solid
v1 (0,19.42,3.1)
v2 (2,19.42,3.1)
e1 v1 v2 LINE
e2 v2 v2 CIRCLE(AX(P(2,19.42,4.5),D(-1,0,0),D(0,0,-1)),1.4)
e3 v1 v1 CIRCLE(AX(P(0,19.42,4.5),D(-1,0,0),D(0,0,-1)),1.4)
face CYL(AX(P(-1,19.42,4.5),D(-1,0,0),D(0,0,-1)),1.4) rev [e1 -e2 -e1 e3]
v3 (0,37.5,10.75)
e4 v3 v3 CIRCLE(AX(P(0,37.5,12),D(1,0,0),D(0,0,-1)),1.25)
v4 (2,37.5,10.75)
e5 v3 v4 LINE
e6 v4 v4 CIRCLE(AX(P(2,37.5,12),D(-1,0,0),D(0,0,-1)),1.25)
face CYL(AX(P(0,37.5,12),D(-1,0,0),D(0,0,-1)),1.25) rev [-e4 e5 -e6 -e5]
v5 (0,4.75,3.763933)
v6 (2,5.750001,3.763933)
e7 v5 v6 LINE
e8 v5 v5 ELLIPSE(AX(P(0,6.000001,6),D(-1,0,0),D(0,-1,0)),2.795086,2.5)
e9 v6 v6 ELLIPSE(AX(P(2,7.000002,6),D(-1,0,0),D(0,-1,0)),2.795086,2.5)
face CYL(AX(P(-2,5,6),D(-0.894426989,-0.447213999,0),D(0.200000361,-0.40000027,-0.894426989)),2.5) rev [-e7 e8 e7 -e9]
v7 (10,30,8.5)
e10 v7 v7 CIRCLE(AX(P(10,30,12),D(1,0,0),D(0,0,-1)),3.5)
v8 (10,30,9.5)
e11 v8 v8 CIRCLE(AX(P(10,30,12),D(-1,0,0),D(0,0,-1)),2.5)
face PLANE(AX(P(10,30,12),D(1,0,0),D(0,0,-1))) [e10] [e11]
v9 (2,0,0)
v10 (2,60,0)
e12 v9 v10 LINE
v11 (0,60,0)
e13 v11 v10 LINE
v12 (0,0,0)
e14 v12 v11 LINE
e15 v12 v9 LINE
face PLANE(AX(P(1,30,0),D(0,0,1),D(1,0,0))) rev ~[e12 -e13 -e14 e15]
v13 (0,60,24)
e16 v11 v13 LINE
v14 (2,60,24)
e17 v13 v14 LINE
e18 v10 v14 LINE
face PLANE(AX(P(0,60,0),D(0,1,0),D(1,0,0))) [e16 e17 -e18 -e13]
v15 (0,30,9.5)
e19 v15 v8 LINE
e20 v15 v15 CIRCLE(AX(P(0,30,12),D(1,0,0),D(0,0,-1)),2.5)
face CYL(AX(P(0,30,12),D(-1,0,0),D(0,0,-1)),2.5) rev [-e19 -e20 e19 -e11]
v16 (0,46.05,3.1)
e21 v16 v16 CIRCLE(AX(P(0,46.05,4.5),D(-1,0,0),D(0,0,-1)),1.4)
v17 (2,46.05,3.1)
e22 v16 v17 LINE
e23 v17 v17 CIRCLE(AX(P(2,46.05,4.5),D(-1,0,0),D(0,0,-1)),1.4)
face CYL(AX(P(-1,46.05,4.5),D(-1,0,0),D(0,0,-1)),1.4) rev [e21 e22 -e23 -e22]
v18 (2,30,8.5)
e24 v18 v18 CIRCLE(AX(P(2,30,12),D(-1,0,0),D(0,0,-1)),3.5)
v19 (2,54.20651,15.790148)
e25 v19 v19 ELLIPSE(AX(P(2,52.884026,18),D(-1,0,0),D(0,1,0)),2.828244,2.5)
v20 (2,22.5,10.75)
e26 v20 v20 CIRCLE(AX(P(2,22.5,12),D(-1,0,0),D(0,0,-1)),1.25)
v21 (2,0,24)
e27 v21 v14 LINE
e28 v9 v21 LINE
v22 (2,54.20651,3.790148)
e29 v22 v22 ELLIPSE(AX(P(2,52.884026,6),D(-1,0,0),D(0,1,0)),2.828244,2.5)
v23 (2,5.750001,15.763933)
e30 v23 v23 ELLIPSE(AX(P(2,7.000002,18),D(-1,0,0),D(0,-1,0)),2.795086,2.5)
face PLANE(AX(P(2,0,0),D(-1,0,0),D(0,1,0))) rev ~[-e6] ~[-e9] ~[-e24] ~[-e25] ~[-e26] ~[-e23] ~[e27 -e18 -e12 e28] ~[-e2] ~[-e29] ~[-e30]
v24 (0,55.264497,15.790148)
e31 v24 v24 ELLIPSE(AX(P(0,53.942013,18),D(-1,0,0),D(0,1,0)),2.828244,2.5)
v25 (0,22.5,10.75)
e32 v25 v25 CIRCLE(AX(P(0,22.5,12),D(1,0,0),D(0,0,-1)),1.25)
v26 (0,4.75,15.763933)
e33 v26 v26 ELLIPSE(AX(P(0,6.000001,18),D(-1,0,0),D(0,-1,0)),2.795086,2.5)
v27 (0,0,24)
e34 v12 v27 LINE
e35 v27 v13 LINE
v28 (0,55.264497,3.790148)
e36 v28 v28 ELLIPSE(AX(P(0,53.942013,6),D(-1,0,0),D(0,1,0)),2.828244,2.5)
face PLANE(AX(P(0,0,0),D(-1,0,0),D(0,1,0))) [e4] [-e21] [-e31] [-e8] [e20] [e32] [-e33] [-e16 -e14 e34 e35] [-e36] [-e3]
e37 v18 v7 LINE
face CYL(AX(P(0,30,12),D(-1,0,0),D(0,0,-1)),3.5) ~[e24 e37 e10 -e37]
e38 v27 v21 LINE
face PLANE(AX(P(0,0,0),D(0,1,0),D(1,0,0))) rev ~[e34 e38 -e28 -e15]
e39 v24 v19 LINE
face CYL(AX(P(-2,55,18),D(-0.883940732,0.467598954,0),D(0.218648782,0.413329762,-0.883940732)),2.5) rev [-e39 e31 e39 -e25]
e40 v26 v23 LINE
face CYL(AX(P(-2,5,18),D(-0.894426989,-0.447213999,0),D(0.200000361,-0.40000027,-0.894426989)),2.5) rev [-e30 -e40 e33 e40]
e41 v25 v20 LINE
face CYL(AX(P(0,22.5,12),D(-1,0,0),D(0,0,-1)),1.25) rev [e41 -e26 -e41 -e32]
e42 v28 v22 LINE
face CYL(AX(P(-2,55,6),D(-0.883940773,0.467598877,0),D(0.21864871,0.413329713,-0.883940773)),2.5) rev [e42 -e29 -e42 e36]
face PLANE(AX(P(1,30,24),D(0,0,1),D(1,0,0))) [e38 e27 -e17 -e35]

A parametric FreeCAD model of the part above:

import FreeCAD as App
import Part
import Sketcher

doc = App.newDocument("Part")
body = doc.addObject("PartDesign::Body", "Body")

# Sketch on XY plane
sketch1 = doc.addObject("Sketcher::SketchObject", "Sketch")
body.addObject(sketch1)
sketch1.AttachmentSupport = (doc.XY_Plane, [""])
sketch1.MapMode = "FlatFace"
sketch1.addGeometry(Part.Circle(App.Vector(0, 0, 0), App.Vector(0, 0, 1), 2.5), False)
sketch1.addConstraint([
    Sketcher.Constraint("Coincident", 0, 3, -1, 1),
    Sketcher.Constraint("Diameter", 0, 5.0),
])
pad1 = doc.addObject("PartDesign::Pad", "Pad")
body.addObject(pad1)
pad1.Profile = sketch1
pad1.Length = 12
body2 = doc.addObject("PartDesign::Body", "Body001")
doc.recompute()

body.Placement = App.Placement(App.Vector(0, 0, 0), App.Rotation(App.Vector(0, 1, 0), 90))
boolean = doc.addObject("PartDesign::Boolean", "Boolean")
body2.addObject(boolean)
boolean.Type = "Fuse"
boolean.addObjects([body])
body3 = doc.addObject("PartDesign::Body", "Body002")
doc.recompute()

body2.Placement = App.Placement(App.Vector(0, 30, 12), App.Rotation(App.Vector(0, 0, 1), 0))
boolean2 = doc.addObject("PartDesign::Boolean", "Boolean001")
body3.addObject(boolean2)
boolean2.Type = "Fuse"
boolean2.addObjects([body2])
body4 = doc.addObject("PartDesign::Body", "Body003")

# Sketch on XY plane
sketch2 = doc.addObject("Sketcher::SketchObject", "Sketch001")
body4.addObject(sketch2)
sketch2.AttachmentSupport = (doc.getObject("XY_Plane003"), [""])
sketch2.MapMode = "FlatFace"
sketch2.addGeometry(Part.Circle(App.Vector(0, 0, 0), App.Vector(0, 0, 1), 3.5), False)
sketch2.addConstraint([
    Sketcher.Constraint("Coincident", 0, 3, -1, 1),
    Sketcher.Constraint("Diameter", 0, 7.0),
])
pad2 = doc.addObject("PartDesign::Pad", "Pad001")
body4.addObject(pad2)
pad2.Profile = sketch2
pad2.Length = 10
body5 = doc.addObject("PartDesign::Body", "Body004")
doc.recompute()

body4.Placement = App.Placement(App.Vector(0, 0, 0), App.Rotation(App.Vector(0, 1, 0), 90))
boolean3 = doc.addObject("PartDesign::Boolean", "Boolean002")
body5.addObject(boolean3)
boolean3.Type = "Fuse"
boolean3.addObjects([body4])
body6 = doc.addObject("PartDesign::Body", "Body005")
doc.recompute()

body5.Placement = App.Placement(App.Vector(0, 30, 12), App.Rotation(App.Vector(0, 0, 1), 0))
boolean4 = doc.addObject("PartDesign::Boolean", "Boolean003")
body6.addObject(boolean4)
boolean4.Type = "Fuse"
boolean4.addObjects([body5])
doc.recompute()

body7 = doc.addObject("PartDesign::Body", "Body006")
body7.BaseFeature = body3
boolean5 = doc.addObject("PartDesign::Boolean", "Boolean004")
body6.addObject(boolean5)
boolean5.Type = "Cut"
boolean5.addObjects([body7])
doc.recompute()
body8 = doc.addObject("PartDesign::Body", "Body007")

# Sketch on XY plane
sketch3 = doc.addObject("Sketcher::SketchObject", "Sketch002")
body8.addObject(sketch3)
sketch3.AttachmentSupport = (doc.getObject("XY_Plane007"), [""])
sketch3.MapMode = "FlatFace"
sketch3.addGeometry(Part.Circle(App.Vector(0, 0, 0), App.Vector(0, 0, 1), 1.4), False)
sketch3.addConstraint([
    Sketcher.Constraint("Coincident", 0, 3, -1, 1),
    Sketcher.Constraint("Diameter", 0, 2.8),
])
pad3 = doc.addObject("PartDesign::Pad", "Pad002")
body8.addObject(pad3)
pad3.Profile = sketch3
pad3.Length = 10
body9 = doc.addObject("PartDesign::Body", "Body008")
doc.recompute()

body8.Placement = App.Placement(App.Vector(0, 0, 0), App.Rotation(App.Vector(0, 1, 0), 90))
boolean6 = doc.addObject("PartDesign::Boolean", "Boolean005")
body9.addObject(boolean6)
boolean6.Type = "Fuse"
boolean6.addObjects([body8])
body10 = doc.addObject("PartDesign::Body", "Body009")
doc.recompute()

body9.Placement = App.Placement(App.Vector(-1, 46.05, 4.5), App.Rotation(App.Vector(0, 0, 1), 0))
boolean7 = doc.addObject("PartDesign::Boolean", "Boolean006")
body10.addObject(boolean7)
boolean7.Type = "Fuse"
boolean7.addObjects([body9])
body11 = doc.addObject("PartDesign::Body", "Body010")

# Sketch on XY plane
sketch4 = doc.addObject("Sketcher::SketchObject", "Sketch003")
body11.addObject(sketch4)
sketch4.AttachmentSupport = (doc.getObject("XY_Plane010"), [""])
sketch4.MapMode = "FlatFace"
sketch4.addGeometry(Part.Circle(App.Vector(0, 0, 0), App.Vector(0, 0, 1), 1.4), False)
sketch4.addConstraint([
    Sketcher.Constraint("Coincident", 0, 3, -1, 1),
    Sketcher.Constraint("Diameter", 0, 2.8),
])
pad4 = doc.addObject("PartDesign::Pad", "Pad003")
body11.addObject(pad4)
pad4.Profile = sketch4
pad4.Length = 10
body12 = doc.addObject("PartDesign::Body", "Body011")
doc.recompute()

body11.Placement = App.Placement(App.Vector(0, 0, 0), App.Rotation(App.Vector(0, 1, 0), 90))
boolean8 = doc.addObject("PartDesign::Boolean", "Boolean007")
body12.addObject(boolean8)
boolean8.Type = "Fuse"
boolean8.addObjects([body11])
body13 = doc.addObject("PartDesign::Body", "Body012")
doc.recompute()

body12.Placement = App.Placement(App.Vector(-1, 19.42, 4.5), App.Rotation(App.Vector(0, 0, 1), 0))
boolean9 = doc.addObject("PartDesign::Boolean", "Boolean008")
body13.addObject(boolean9)
boolean9.Type = "Fuse"
boolean9.addObjects([body12])
body14 = doc.addObject("PartDesign::Body", "Body013")

# Sketch on XY plane
sketch5 = doc.addObject("Sketcher::SketchObject", "Sketch004")
body14.addObject(sketch5)
sketch5.AttachmentSupport = (doc.getObject("XY_Plane013"), [""])
sketch5.MapMode = "FlatFace"
sketch5.addGeometry(Part.Circle(App.Vector(0, 0, 0), App.Vector(0, 0, 1), 1.2), False)
sketch5.addConstraint([
    Sketcher.Constraint("Coincident", 0, 3, -1, 1),
    Sketcher.Constraint("Diameter", 0, 2.5),
])
pad5 = doc.addObject("PartDesign::Pad", "Pad004")
body14.addObject(pad5)
pad5.Profile = sketch5
pad5.Length = 10
body15 = doc.addObject("PartDesign::Body", "Body014")
doc.recompute()

body14.Placement = App.Placement(App.Vector(0, 0, 0), App.Rotation(App.Vector(0, 1, 0), 90))
boolean10 = doc.addObject("PartDesign::Boolean", "Boolean009")
body15.addObject(boolean10)
boolean10.Type = "Fuse"
boolean10.addObjects([body14])
body16 = doc.addObject("PartDesign::Body", "Body015")
doc.recompute()

body15.Placement = App.Placement(App.Vector(0, 22.5, 12), App.Rotation(App.Vector(0, 0, 1), 0))
boolean11 = doc.addObject("PartDesign::Boolean", "Boolean010")
body16.addObject(boolean11)
boolean11.Type = "Fuse"
boolean11.addObjects([body15])
body17 = doc.addObject("PartDesign::Body", "Body016")

# Sketch on XY plane
sketch6 = doc.addObject("Sketcher::SketchObject", "Sketch005")
body17.addObject(sketch6)
sketch6.AttachmentSupport = (doc.getObject("XY_Plane016"), [""])
sketch6.MapMode = "FlatFace"
sketch6.addGeometry(Part.Circle(App.Vector(0, 0, 0), App.Vector(0, 0, 1), 1.2), False)
sketch6.addConstraint([
    Sketcher.Constraint("Coincident", 0, 3, -1, 1),
    Sketcher.Constraint("Diameter", 0, 2.5),
])
pad6 = doc.addObject("PartDesign::Pad", "Pad005")
body17.addObject(pad6)
pad6.Profile = sketch6
pad6.Length = 10
body18 = doc.addObject("PartDesign::Body", "Body017")
doc.recompute()

body17.Placement = App.Placement(App.Vector(0, 0, 0), App.Rotation(App.Vector(0, 1, 0), 90))
boolean12 = doc.addObject("PartDesign::Boolean", "Boolean011")
body18.addObject(boolean12)
boolean12.Type = "Fuse"
boolean12.addObjects([body17])
body19 = doc.addObject("PartDesign::Body", "Body018")
doc.recompute()

body18.Placement = App.Placement(App.Vector(0, 37.5, 12), App.Rotation(App.Vector(0, 0, 1), 0))
boolean13 = doc.addObject("PartDesign::Boolean", "Boolean012")
body19.addObject(boolean13)
boolean13.Type = "Fuse"
boolean13.addObjects([body18])
body20 = doc.addObject("PartDesign::Body", "Body019")

# Sketch on XY plane
sketch7 = doc.addObject("Sketcher::SketchObject", "Sketch006")
body20.addObject(sketch7)
sketch7.AttachmentSupport = (doc.getObject("XY_Plane019"), [""])
sketch7.MapMode = "FlatFace"
sketch7.addGeometry(Part.Circle(App.Vector(0, 0, 0), App.Vector(0, 0, 1), 2.5), False)
sketch7.addConstraint([
    Sketcher.Constraint("Coincident", 0, 3, -1, 1),
    Sketcher.Constraint("Diameter", 0, 5.0),
])
pad7 = doc.addObject("PartDesign::Pad", "Pad006")
body20.addObject(pad7)
pad7.Profile = sketch7
pad7.Length = 10
body21 = doc.addObject("PartDesign::Body", "Body020")
doc.recompute()

body20.Placement = App.Placement(App.Vector(0, 0, 0), App.Rotation(App.Vector(1, 0, 0), 90))
boolean14 = doc.addObject("PartDesign::Boolean", "Boolean013")
body21.addObject(boolean14)
boolean14.Type = "Fuse"
boolean14.addObjects([body20])
body22 = doc.addObject("PartDesign::Body", "Body021")
doc.recompute()

body21.Placement = App.Placement(App.Vector(0, 0, 0), App.Rotation(App.Vector(0, 1, 0), 62.121453))
boolean15 = doc.addObject("PartDesign::Boolean", "Boolean014")
body22.addObject(boolean15)
boolean15.Type = "Fuse"
boolean15.addObjects([body21])
body23 = doc.addObject("PartDesign::Body", "Body022")
doc.recompute()

body22.Placement = App.Placement(App.Vector(-2, 55, 6), App.Rotation(App.Vector(0, 0, 1), 62.121453))
boolean16 = doc.addObject("PartDesign::Boolean", "Boolean015")
body23.addObject(boolean16)
boolean16.Type = "Fuse"
boolean16.addObjects([body22])
body24 = doc.addObject("PartDesign::Body", "Body023")

# Sketch on XY plane
sketch8 = doc.addObject("Sketcher::SketchObject", "Sketch007")
body24.addObject(sketch8)
sketch8.AttachmentSupport = (doc.getObject("XY_Plane023"), [""])
sketch8.MapMode = "FlatFace"
sketch8.addGeometry(Part.Circle(App.Vector(0, 0, 0), App.Vector(0, 0, 1), 2.5), False)
sketch8.addConstraint([
    Sketcher.Constraint("Coincident", 0, 3, -1, 1),
    Sketcher.Constraint("Diameter", 0, 5.0),
])
pad8 = doc.addObject("PartDesign::Pad", "Pad007")
body24.addObject(pad8)
pad8.Profile = sketch8
pad8.Length = 10
body25 = doc.addObject("PartDesign::Body", "Body024")
doc.recompute()

body24.Placement = App.Placement(App.Vector(0, 0, 0), App.Rotation(App.Vector(1, 0, 0), 90))
boolean17 = doc.addObject("PartDesign::Boolean", "Boolean016")
body25.addObject(boolean17)
boolean17.Type = "Fuse"
boolean17.addObjects([body24])
body26 = doc.addObject("PartDesign::Body", "Body025")
doc.recompute()

body25.Placement = App.Placement(App.Vector(0, 0, 0), App.Rotation(App.Vector(0, 1, 0), 62.121448))
boolean18 = doc.addObject("PartDesign::Boolean", "Boolean017")
body26.addObject(boolean18)
boolean18.Type = "Fuse"
boolean18.addObjects([body25])
body27 = doc.addObject("PartDesign::Body", "Body026")
doc.recompute()

body26.Placement = App.Placement(App.Vector(-2, 55, 18), App.Rotation(App.Vector(0, 0, 1), 62.121448))
boolean19 = doc.addObject("PartDesign::Boolean", "Boolean018")
body27.addObject(boolean19)
boolean19.Type = "Fuse"
boolean19.addObjects([body26])
body28 = doc.addObject("PartDesign::Body", "Body027")

# Sketch on XY plane
sketch9 = doc.addObject("Sketcher::SketchObject", "Sketch008")
body28.addObject(sketch9)
sketch9.AttachmentSupport = (doc.getObject("XY_Plane027"), [""])
sketch9.MapMode = "FlatFace"
sketch9.addGeometry(Part.Circle(App.Vector(0, 0, 0), App.Vector(0, 0, 1), 2.5), False)
sketch9.addConstraint([
    Sketcher.Constraint("Coincident", 0, 3, -1, 1),
    Sketcher.Constraint("Diameter", 0, 5.0),
])
pad9 = doc.addObject("PartDesign::Pad", "Pad008")
body28.addObject(pad9)
pad9.Profile = sketch9
pad9.Length = 10
body29 = doc.addObject("PartDesign::Body", "Body028")
doc.recompute()

body28.Placement = App.Placement(App.Vector(0, 0, 0), App.Rotation(App.Vector(1, 0, 0), 270))
boolean20 = doc.addObject("PartDesign::Boolean", "Boolean019")
body29.addObject(boolean20)
boolean20.Type = "Fuse"
boolean20.addObjects([body28])
body30 = doc.addObject("PartDesign::Body", "Body029")
doc.recompute()

body29.Placement = App.Placement(App.Vector(0, 0, 0), App.Rotation(App.Vector(0, 1, 0), 63.434923))
boolean21 = doc.addObject("PartDesign::Boolean", "Boolean020")
body30.addObject(boolean21)
boolean21.Type = "Fuse"
boolean21.addObjects([body29])
body31 = doc.addObject("PartDesign::Body", "Body030")
doc.recompute()

body30.Placement = App.Placement(App.Vector(-2, 5, 6), App.Rotation(App.Vector(0, 0, 1), 296.565077))
boolean22 = doc.addObject("PartDesign::Boolean", "Boolean021")
body31.addObject(boolean22)
boolean22.Type = "Fuse"
boolean22.addObjects([body30])
body32 = doc.addObject("PartDesign::Body", "Body031")

# Sketch on XY plane
sketch10 = doc.addObject("Sketcher::SketchObject", "Sketch009")
body32.addObject(sketch10)
sketch10.AttachmentSupport = (doc.getObject("XY_Plane031"), [""])
sketch10.MapMode = "FlatFace"
sketch10.addGeometry(Part.Circle(App.Vector(0, 0, 0), App.Vector(0, 0, 1), 2.5), False)
sketch10.addConstraint([
    Sketcher.Constraint("Coincident", 0, 3, -1, 1),
    Sketcher.Constraint("Diameter", 0, 5.0),
])
pad10 = doc.addObject("PartDesign::Pad", "Pad009")
body32.addObject(pad10)
pad10.Profile = sketch10
pad10.Length = 10
body33 = doc.addObject("PartDesign::Body", "Body032")
doc.recompute()

body32.Placement = App.Placement(App.Vector(0, 0, 0), App.Rotation(App.Vector(1, 0, 0), 270))
boolean23 = doc.addObject("PartDesign::Boolean", "Boolean022")
body33.addObject(boolean23)
boolean23.Type = "Fuse"
boolean23.addObjects([body32])
body34 = doc.addObject("PartDesign::Body", "Body033")
doc.recompute()

body33.Placement = App.Placement(App.Vector(0, 0, 0), App.Rotation(App.Vector(0, 1, 0), 63.434923))
boolean24 = doc.addObject("PartDesign::Boolean", "Boolean023")
body34.addObject(boolean24)
boolean24.Type = "Fuse"
boolean24.addObjects([body33])
body35 = doc.addObject("PartDesign::Body", "Body034")
doc.recompute()

body34.Placement = App.Placement(App.Vector(-2, 5, 18), App.Rotation(App.Vector(0, 0, 1), 296.565077))
boolean25 = doc.addObject("PartDesign::Boolean", "Boolean024")
body35.addObject(boolean25)
boolean25.Type = "Fuse"
boolean25.addObjects([body34])
body36 = doc.addObject("PartDesign::Body", "Body035")

# Sketch on XY plane
sketch11 = doc.addObject("Sketcher::SketchObject", "Sketch010")
body36.addObject(sketch11)
sketch11.AttachmentSupport = (doc.getObject("XY_Plane035"), [""])
sketch11.MapMode = "FlatFace"
sketch11.addGeometry([
    Part.LineSegment(App.Vector(0, 60, 0), App.Vector(0, 0, 0)),
    Part.LineSegment(App.Vector(0, 0, 0), App.Vector(2, 0, 0)),
    Part.LineSegment(App.Vector(2, 0, 0), App.Vector(2, 60, 0)),
    Part.LineSegment(App.Vector(2, 60, 0), App.Vector(0, 60, 0)),
], False)
sketch11.addConstraint([
    Sketcher.Constraint("Coincident", 0, 2, 1, 1),
    Sketcher.Constraint("Coincident", 1, 2, 2, 1),
    Sketcher.Constraint("Coincident", 2, 2, 3, 1),
    Sketcher.Constraint("Coincident", 3, 2, 0, 1),
    Sketcher.Constraint("Vertical", 0),
    Sketcher.Constraint("Horizontal", 1),
    Sketcher.Constraint("Vertical", 2),
    Sketcher.Constraint("Horizontal", 3),
    Sketcher.Constraint("Coincident", 0, 2, -1, 1),
    Sketcher.Constraint("DistanceX", 1, 1, 1, 2, 2.0),
    Sketcher.Constraint("DistanceY", 0, 2, 0, 1, 60.0),
])
pad11 = doc.addObject("PartDesign::Pad", "Pad010")
body36.addObject(pad11)
pad11.Profile = sketch11
pad11.Length = 24
doc.recompute()

boolean26 = doc.addObject("PartDesign::Boolean", "Boolean025")
body36.addObject(boolean26)
boolean26.Type = "Cut"
boolean26.addObjects([body35])
doc.recompute()

boolean27 = doc.addObject("PartDesign::Boolean", "Boolean026")
body36.addObject(boolean27)
boolean27.Type = "Cut"
boolean27.addObjects([body31])
doc.recompute()

boolean28 = doc.addObject("PartDesign::Boolean", "Boolean027")
body36.addObject(boolean28)
boolean28.Type = "Cut"
boolean28.addObjects([body27])
doc.recompute()

boolean29 = doc.addObject("PartDesign::Boolean", "Boolean028")
body36.addObject(boolean29)
boolean29.Type = "Cut"
boolean29.addObjects([body23])
doc.recompute()

boolean30 = doc.addObject("PartDesign::Boolean", "Boolean029")
body36.addObject(boolean30)
boolean30.Type = "Cut"
boolean30.addObjects([body19])
doc.recompute()

boolean31 = doc.addObject("PartDesign::Boolean", "Boolean030")
body36.addObject(boolean31)
boolean31.Type = "Cut"
boolean31.addObjects([body16])
doc.recompute()

boolean32 = doc.addObject("PartDesign::Boolean", "Boolean031")
body36.addObject(boolean32)
boolean32.Type = "Cut"
boolean32.addObjects([body3])
doc.recompute()

boolean33 = doc.addObject("PartDesign::Boolean", "Boolean032")
body36.addObject(boolean33)
boolean33.Type = "Cut"
boolean33.addObjects([body13])
doc.recompute()

boolean34 = doc.addObject("PartDesign::Boolean", "Boolean033")
body36.addObject(boolean34)
boolean34.Type = "Cut"
boolean34.addObjects([body10])
doc.recompute()

boolean35 = doc.addObject("PartDesign::Boolean", "Boolean034")
body36.addObject(boolean35)
boolean35.Type = "Fuse"
boolean35.addObjects([body6])

doc.recompute()
